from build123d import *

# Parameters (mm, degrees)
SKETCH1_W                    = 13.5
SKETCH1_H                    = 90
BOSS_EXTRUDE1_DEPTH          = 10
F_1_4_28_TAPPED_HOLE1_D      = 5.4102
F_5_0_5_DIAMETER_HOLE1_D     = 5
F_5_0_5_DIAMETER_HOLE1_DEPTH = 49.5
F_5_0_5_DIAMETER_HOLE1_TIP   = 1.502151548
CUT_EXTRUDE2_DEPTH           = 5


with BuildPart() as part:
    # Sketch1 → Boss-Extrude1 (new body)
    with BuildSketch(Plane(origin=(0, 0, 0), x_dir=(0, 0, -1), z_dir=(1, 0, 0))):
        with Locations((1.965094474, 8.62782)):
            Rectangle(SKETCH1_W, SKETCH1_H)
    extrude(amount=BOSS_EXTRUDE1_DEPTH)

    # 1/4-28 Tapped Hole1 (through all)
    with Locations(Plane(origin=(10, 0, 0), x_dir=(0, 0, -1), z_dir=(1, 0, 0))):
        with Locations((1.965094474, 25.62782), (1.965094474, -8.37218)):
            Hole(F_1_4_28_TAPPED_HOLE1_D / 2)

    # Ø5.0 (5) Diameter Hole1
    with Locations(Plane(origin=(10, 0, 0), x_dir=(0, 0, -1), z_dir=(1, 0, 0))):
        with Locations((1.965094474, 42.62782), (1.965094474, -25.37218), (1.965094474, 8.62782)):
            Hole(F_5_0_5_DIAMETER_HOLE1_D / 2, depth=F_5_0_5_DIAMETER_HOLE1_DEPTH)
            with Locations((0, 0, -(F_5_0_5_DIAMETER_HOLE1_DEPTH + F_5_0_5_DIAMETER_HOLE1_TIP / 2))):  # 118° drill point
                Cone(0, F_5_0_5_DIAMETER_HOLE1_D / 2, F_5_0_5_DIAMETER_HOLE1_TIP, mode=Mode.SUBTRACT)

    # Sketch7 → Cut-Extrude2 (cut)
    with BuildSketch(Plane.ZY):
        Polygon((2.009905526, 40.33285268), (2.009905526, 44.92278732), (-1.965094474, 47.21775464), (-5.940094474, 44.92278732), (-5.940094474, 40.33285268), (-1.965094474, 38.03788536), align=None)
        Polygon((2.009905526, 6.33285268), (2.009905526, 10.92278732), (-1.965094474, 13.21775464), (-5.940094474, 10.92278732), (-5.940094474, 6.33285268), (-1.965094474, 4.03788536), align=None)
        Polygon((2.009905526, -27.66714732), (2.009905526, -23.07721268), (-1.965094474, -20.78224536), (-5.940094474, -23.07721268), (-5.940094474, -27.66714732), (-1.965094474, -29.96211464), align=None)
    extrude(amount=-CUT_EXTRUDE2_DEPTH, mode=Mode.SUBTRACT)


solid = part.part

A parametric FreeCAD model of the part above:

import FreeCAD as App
import Part
import Sketcher

V = App.Vector
Q = App.Units.Quantity


def add_polygon(sketch, points):
    """Adds a closed chain of lines whose ends are joined by coincident constraints."""
    first, n = sketch.GeometryCount, len(points)
    for a, b in zip(points, points[1:] + points[:1]):
        sketch.addGeometry(Part.LineSegment(App.Vector(*a, 0), App.Vector(*b, 0)), False)
    for i in range(n):
        sketch.addConstraint(Sketcher.Constraint("Coincident", first + i, 2, first + (i + 1) % n, 1))

doc = App.newDocument("Part")
body = doc.addObject("PartDesign::Body", "Body")

sketch1 = doc.addObject("Sketcher::SketchObject", "Sketch")
body.addObject(sketch1)
sketch1.AttachmentSupport = (doc.YZ_Plane, [""])
sketch1.MapMode = "FlatFace"
add_polygon(sketch1, [(54, 5), (-36, 5), (-36, -9), (54, -9)])
sketch1.addConstraint([
    Sketcher.Constraint("Horizontal", 0),
    Sketcher.Constraint("Vertical", 1),
    Sketcher.Constraint("Horizontal", 2),
    Sketcher.Constraint("Vertical", 3),
    Sketcher.Constraint("DistanceX", 0, 2, 0, 1, Q("90 mm")),
    Sketcher.Constraint("DistanceY", 1, 2, 1, 1, Q("13.5 mm")),
    Sketcher.Constraint("DistanceX", 0, 2, -1, 1, Q("36.37218 mm")),
    Sketcher.Constraint("DistanceY", -1, 1, 0, 2, Q("4.784906 mm")),
])
pad1 = doc.addObject("PartDesign::Pad", "Pad")
body.addObject(pad1)
pad1.Profile = sketch1
pad1.Length = 10

sketch2 = doc.addObject("Sketcher::SketchObject", "Sketch001")
body.addObject(sketch2)
sketch2.AttachmentSupport = (doc.YZ_Plane, [""])
sketch2.MapMode = "FlatFace"
sketch2.AttachmentOffset = App.Placement(V(0, 0, 10), App.Rotation())
sketch2.addGeometry([
    Part.Circle(V(25.6, -2, 0), V(0, 0, 1), 2.7),
    Part.Circle(V(-8.4, -2, 0), V(0, 0, 1), 2.7),
], False)
sketch2.addConstraint([
    Sketcher.Constraint("Equal", 0, 1),
    Sketcher.Constraint("Horizontal", 0, 3, 1, 3),
    Sketcher.Constraint("DistanceX", 1, 3, 0, 3, Q("34 mm")),
    Sketcher.Constraint("Diameter", 0, Q("5.4102 mm")),
    Sketcher.Constraint("DistanceX", -1, 1, 0, 3, Q("25.62782 mm")),
    Sketcher.Constraint("DistanceY", 0, 3, -1, 1, Q("1.965094 mm")),
])
doc.recompute()
hole = doc.addObject("PartDesign::Hole", "Hole")
body.addObject(hole)
hole.Profile = sketch2
hole.ThreadType = "None"
hole.Diameter = 5.4102
hole.DepthType = "ThroughAll"

sketch3 = doc.addObject("Sketcher::SketchObject", "Sketch002")
body.addObject(sketch3)
sketch3.AttachmentSupport = (doc.YZ_Plane, [""])
sketch3.MapMode = "FlatFace"
sketch3.AttachmentOffset = App.Placement(V(0, 0, 10), App.Rotation())
sketch3.addGeometry([
    Part.Circle(V(42.6, -2, 0), V(0, 0, 1), 2.5),
    Part.Circle(V(-25.4, -2, 0), V(0, 0, 1), 2.5),
    Part.Circle(V(8.6, -2, 0), V(0, 0, 1), 2.5),
], False)
sketch3.addConstraint([
    Sketcher.Constraint("Equal", 0, 1),
    Sketcher.Constraint("Equal", 1, 2),
    Sketcher.Constraint("Horizontal", 0, 3, 1, 3),
    Sketcher.Constraint("Horizontal", 1, 3, 2, 3),
    Sketcher.Constraint("Diameter", 0, Q("5 mm")),
    Sketcher.Constraint("DistanceX", 1, 3, 0, 3, Q("68 mm")),
    Sketcher.Constraint("DistanceX", 2, 3, 0, 3, Q("34 mm")),
    Sketcher.Constraint("DistanceX", -1, 1, 0, 3, Q("42.62782 mm")),
    Sketcher.Constraint("DistanceY", 0, 3, -1, 1, Q("1.965094 mm")),
])
doc.recompute()
hole2 = doc.addObject("PartDesign::Hole", "Hole001")
body.addObject(hole2)
hole2.Profile = sketch3
hole2.ThreadType = "None"
hole2.Diameter = 5
hole2.DepthType = "Dimension"
hole2.Depth = 49.5
hole2.DrillPoint = "Angled"
hole2.DrillPointAngle = 118

sketch4 = doc.addObject("Sketcher::SketchObject", "Sketch003")
body.addObject(sketch4)
sketch4.AttachmentSupport = (doc.YZ_Plane, [""])
sketch4.MapMode = "FlatFace"
add_polygon(sketch4, [(40.3, 2), (44.9, 2), (47.2, -2), (44.9, -5.9), (40.3, -5.9), (38, -2)])
add_polygon(sketch4, [(6.3, 2), (10.9, 2), (13.2, -2), (10.9, -5.9), (6.3, -5.9), (4, -2)])
add_polygon(sketch4, [(-27.7, 2), (-23.1, 2), (-20.8, -2), (-23.1, -5.9), (-27.7, -5.9), (-30, -2)])
sketch4.addConstraint([
    Sketcher.Constraint("Horizontal", 0),
    Sketcher.Constraint("Horizontal", 3),
    Sketcher.Constraint("Horizontal", 6),
    Sketcher.Constraint("Horizontal", 9),
    Sketcher.Constraint("Horizontal", 12),
    Sketcher.Constraint("Horizontal", 15),
    Sketcher.Constraint("Parallel", 1, 4),
    Sketcher.Constraint("Parallel", 2, 5),
    Sketcher.Constraint("Parallel", 4, 7),
    Sketcher.Constraint("Parallel", 5, 8),
    Sketcher.Constraint("Parallel", 7, 10),
    Sketcher.Constraint("Parallel", 8, 11),
    Sketcher.Constraint("Parallel", 10, 13),
    Sketcher.Constraint("Parallel", 11, 14),
    Sketcher.Constraint("Parallel", 13, 16),
    Sketcher.Constraint("Parallel", 14, 17),
    Sketcher.Constraint("Horizontal", 1, 2, 4, 2),
    Sketcher.Constraint("Horizontal", 5, 2, 6, 2),
    Sketcher.Constraint("Horizontal", 4, 2, 7, 2),
    Sketcher.Constraint("Horizontal", 3, 2, 8, 2),
    Sketcher.Constraint("Horizontal", 7, 2, 10, 2),
    Sketcher.Constraint("Horizontal", 11, 2, 12, 2),
    Sketcher.Constraint("Horizontal", 10, 2, 13, 2),
    Sketcher.Constraint("Horizontal", 9, 2, 14, 2),
    Sketcher.Constraint("Horizontal", 13, 2, 16, 2),
    Sketcher.Constraint("Vertical", 0, 2, 2, 2),
    Sketcher.Constraint("Vertical", 3, 2, 5, 2),
    Sketcher.Constraint("Equal", 3, 6),
    Sketcher.Constraint("Equal", 9, 12),
    Sketcher.Constraint("Angle", 1, Q("-60 deg")),
    Sketcher.Constraint("DistanceX", 6, 2, 0, 2, Q("34 mm")),
    Sketcher.Constraint("DistanceX", 12, 2, 6, 2, Q("34 mm")),
    Sketcher.Constraint("DistanceY", 2, 2, 0, 2, Q("7.95 mm")),
    Sketcher.Constraint("DistanceX", 3, 2, 1, 2, Q("6.884902 mm")),
    Sketcher.Constraint("DistanceX", -1, 1, 0, 2, Q("44.922787 mm")),
    Sketcher.Constraint("DistanceY", -1, 1, 0, 2, Q("2.009906 mm")),
])
pocket1 = doc.addObject("PartDesign::Pocket", "Pocket")
body.addObject(pocket1)
pocket1.Profile = sketch4
pocket1.Length = 5
pocket1.Reversed = True

doc.recompute()
